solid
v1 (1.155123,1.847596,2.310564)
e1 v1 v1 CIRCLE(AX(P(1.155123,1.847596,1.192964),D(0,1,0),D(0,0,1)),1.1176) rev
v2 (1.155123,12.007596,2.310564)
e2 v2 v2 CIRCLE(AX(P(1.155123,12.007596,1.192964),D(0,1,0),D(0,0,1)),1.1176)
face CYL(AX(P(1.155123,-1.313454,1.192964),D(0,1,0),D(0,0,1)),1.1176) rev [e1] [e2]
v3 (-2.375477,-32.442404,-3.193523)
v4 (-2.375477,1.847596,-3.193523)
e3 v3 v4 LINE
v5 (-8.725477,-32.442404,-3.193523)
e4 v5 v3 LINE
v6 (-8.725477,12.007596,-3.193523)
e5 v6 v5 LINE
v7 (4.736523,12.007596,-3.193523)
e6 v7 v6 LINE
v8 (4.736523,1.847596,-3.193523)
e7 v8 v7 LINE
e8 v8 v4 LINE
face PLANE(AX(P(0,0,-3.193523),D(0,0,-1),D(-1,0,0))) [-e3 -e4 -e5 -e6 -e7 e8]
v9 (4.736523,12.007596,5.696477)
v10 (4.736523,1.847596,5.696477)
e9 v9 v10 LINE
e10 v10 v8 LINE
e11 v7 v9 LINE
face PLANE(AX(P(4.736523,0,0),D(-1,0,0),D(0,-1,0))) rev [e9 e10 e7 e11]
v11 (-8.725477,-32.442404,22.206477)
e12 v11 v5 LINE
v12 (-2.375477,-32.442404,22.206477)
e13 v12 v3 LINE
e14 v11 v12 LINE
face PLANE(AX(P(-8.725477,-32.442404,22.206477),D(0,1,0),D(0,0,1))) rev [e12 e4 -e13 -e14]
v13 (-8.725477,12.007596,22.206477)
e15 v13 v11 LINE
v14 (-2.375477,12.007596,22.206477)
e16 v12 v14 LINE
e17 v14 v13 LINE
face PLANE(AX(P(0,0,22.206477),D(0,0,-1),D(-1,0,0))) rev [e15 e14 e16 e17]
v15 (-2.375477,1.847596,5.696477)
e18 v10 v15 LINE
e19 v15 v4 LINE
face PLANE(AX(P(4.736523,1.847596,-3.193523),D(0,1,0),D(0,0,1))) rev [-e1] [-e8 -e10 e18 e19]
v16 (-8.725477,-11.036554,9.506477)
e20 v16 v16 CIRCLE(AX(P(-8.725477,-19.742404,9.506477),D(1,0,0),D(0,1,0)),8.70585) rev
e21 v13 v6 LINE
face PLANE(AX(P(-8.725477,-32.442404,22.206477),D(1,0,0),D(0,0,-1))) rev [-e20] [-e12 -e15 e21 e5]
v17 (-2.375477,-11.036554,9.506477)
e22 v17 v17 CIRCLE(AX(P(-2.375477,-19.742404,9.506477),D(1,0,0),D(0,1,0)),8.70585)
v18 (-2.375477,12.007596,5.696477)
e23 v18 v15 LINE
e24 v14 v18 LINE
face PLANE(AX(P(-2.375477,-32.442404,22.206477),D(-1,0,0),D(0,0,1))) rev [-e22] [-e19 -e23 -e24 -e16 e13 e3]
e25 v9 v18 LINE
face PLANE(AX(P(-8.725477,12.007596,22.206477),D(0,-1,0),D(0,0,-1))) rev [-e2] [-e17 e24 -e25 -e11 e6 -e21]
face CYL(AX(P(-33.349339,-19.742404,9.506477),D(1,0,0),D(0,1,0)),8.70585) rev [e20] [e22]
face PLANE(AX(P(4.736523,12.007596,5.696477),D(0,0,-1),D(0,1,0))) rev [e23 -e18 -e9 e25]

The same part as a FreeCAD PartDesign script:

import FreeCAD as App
import Part
import Sketcher

V = App.Vector
Q = App.Units.Quantity

doc = App.newDocument("Part")
body = doc.addObject("PartDesign::Body", "Body")

sketch1 = body.newObject("Sketcher::SketchObject", "Sketch")
sketch1.AttachmentSupport = (doc.getObject("XY_Plane"), [""])
sketch1.MapMode = "FlatFace"
sketch1.AttachmentOffset = App.Placement(V(0, 0, -3.193523), App.Rotation())
sketch1.addGeometry([
    Part.LineSegment(V(-8.725477, 12.007596, 0), V(-8.725477, -32.442404, 0)),
    Part.LineSegment(V(-8.725477, -32.442404, 0), V(-2.375477, -32.442404, 0)),
    Part.LineSegment(V(-2.375477, -32.442404, 0), V(-2.375477, 12.007596, 0)),
    Part.LineSegment(V(-2.375477, 12.007596, 0), V(-8.725477, 12.007596, 0)),
], False)
sketch1.addConstraint([
    Sketcher.Constraint("Coincident", 0, 2, 1, 1),
    Sketcher.Constraint("Coincident", 1, 2, 2, 1),
    Sketcher.Constraint("Coincident", 2, 2, 3, 1),
    Sketcher.Constraint("Coincident", 3, 2, 0, 1),
    Sketcher.Constraint("Vertical", 0),
    Sketcher.Constraint("Horizontal", 1),
    Sketcher.Constraint("Vertical", 2),
    Sketcher.Constraint("Horizontal", 3),
    Sketcher.Constraint("DistanceX", 1, 1, 1, 2, Q("0.25 in")),
    Sketcher.Constraint("DistanceY", 0, 2, 0, 1, Q("1.75 in")),
    Sketcher.Constraint("DistanceX", 0, 2, -1, 1, 8.725477),
    Sketcher.Constraint("DistanceY", 0, 2, -1, 1, 32.442404),
])
pad1 = body.newObject("PartDesign::Pad", "Pad")
pad1.Profile = sketch1
pad1.Length = Q("1 in")

sketch2 = body.newObject("Sketcher::SketchObject", "Sketch001")
sketch2.AttachmentSupport = (doc.getObject("YZ_Plane"), [""])
sketch2.MapMode = "FlatFace"
sketch2.AttachmentOffset = App.Placement(V(0, 0, -2.375477), App.Rotation())
sketch2.addGeometry([
    Part.LineSegment(V(12.007596, 5.696477, 0), V(1.847596, 5.696477, 0)),
    Part.LineSegment(V(1.847596, 5.696477, 0), V(1.847596, -3.193523, 0)),
    Part.LineSegment(V(1.847596, -3.193523, 0), V(12.007596, -3.193523, 0)),
    Part.LineSegment(V(12.007596, -3.193523, 0), V(12.007596, 5.696477, 0)),
], False)
sketch2.addConstraint([
    Sketcher.Constraint("Coincident", 0, 2, 1, 1),
    Sketcher.Constraint("Coincident", 1, 2, 2, 1),
    Sketcher.Constraint("Coincident", 2, 2, 3, 1),
    Sketcher.Constraint("Coincident", 3, 2, 0, 1),
    Sketcher.Constraint("Horizontal", 0),
    Sketcher.Constraint("Vertical", 1),
    Sketcher.Constraint("Horizontal", 2),
    Sketcher.Constraint("Vertical", 3),
    Sketcher.Constraint("DistanceX", 0, 2, 0, 1, Q("0.4 in")),
    Sketcher.Constraint("DistanceY", 1, 2, 1, 1, Q("0.35 in")),
    Sketcher.Constraint("DistanceX", -1, 1, 0, 2, 1.847596),
    Sketcher.Constraint("DistanceY", -1, 1, 0, 2, 5.696477),
])
pad2 = body.newObject("PartDesign::Pad", "Pad001")
pad2.Profile = sketch2
pad2.Length = Q("0.28 in")

sketch3 = body.newObject("Sketcher::SketchObject", "Sketch002")
sketch3.AttachmentSupport = (doc.getObject("YZ_Plane"), [""])
sketch3.MapMode = "FlatFace"
sketch3.AttachmentOffset = App.Placement(V(0, 0, -2.375477), App.Rotation())
sketch3.addGeometry(Part.Circle(V(-19.742404, 9.506477, 0), V(0, 0, 1), 6.441587), False)
sketch3.addConstraint([
    Sketcher.Constraint("Diameter", 0, 12.883173),
    Sketcher.Constraint("DistanceX", 0, 3, -1, 1, 19.742404),
    Sketcher.Constraint("DistanceY", -1, 1, 0, 3, 9.506477),
])
pocket1 = body.newObject("PartDesign::Pocket", "Pocket")
pocket1.Profile = sketch3
pocket1.Length = Q("0.25 in")

sketch4 = body.newObject("Sketcher::SketchObject", "Sketch003")
sketch4.AttachmentSupport = (doc.getObject("YZ_Plane"), [""])
sketch4.MapMode = "FlatFace"
sketch4.AttachmentOffset = App.Placement(V(0, 0, -2.375477), App.Rotation())
sketch4.addGeometry(Part.Circle(V(-19.742404, 9.506477, 0), V(0, 0, 1), 8.70585), False)
sketch4.addConstraint([
    Sketcher.Constraint("Diameter", 0, Q("0.6855 in")),
    Sketcher.Constraint("DistanceX", 0, 3, -1, 1, 19.742404),
    Sketcher.Constraint("DistanceY", -1, 1, 0, 3, 9.506477),
])
pocket2 = body.newObject("PartDesign::Pocket", "Pocket001")
pocket2.Profile = sketch4
pocket2.Length = Q("0.25 in")

sketch5 = body.newObject("Sketcher::SketchObject", "Sketch004")
sketch5.AttachmentSupport = (doc.getObject("XZ_Plane"), [""])
sketch5.MapMode = "FlatFace"
sketch5.AttachmentOffset = App.Placement(V(0, 0, -12.007596), App.Rotation())
sketch5.addGeometry(Part.Circle(V(1.155123, 1.192964, 0), V(0, 0, 1), 1.1176), False)
sketch5.addConstraint([
    Sketcher.Constraint("Diameter", 0, Q("0.088 in")),
    Sketcher.Constraint("DistanceX", -1, 1, 0, 3, 1.155123),
    Sketcher.Constraint("DistanceY", -1, 1, 0, 3, 1.192964),
])
pocket3 = body.newObject("PartDesign::Pocket", "Pocket002")
pocket3.Profile = sketch5
pocket3.Length = Q("0.4 in")
pocket3.Reversed = True

doc.recompute()
